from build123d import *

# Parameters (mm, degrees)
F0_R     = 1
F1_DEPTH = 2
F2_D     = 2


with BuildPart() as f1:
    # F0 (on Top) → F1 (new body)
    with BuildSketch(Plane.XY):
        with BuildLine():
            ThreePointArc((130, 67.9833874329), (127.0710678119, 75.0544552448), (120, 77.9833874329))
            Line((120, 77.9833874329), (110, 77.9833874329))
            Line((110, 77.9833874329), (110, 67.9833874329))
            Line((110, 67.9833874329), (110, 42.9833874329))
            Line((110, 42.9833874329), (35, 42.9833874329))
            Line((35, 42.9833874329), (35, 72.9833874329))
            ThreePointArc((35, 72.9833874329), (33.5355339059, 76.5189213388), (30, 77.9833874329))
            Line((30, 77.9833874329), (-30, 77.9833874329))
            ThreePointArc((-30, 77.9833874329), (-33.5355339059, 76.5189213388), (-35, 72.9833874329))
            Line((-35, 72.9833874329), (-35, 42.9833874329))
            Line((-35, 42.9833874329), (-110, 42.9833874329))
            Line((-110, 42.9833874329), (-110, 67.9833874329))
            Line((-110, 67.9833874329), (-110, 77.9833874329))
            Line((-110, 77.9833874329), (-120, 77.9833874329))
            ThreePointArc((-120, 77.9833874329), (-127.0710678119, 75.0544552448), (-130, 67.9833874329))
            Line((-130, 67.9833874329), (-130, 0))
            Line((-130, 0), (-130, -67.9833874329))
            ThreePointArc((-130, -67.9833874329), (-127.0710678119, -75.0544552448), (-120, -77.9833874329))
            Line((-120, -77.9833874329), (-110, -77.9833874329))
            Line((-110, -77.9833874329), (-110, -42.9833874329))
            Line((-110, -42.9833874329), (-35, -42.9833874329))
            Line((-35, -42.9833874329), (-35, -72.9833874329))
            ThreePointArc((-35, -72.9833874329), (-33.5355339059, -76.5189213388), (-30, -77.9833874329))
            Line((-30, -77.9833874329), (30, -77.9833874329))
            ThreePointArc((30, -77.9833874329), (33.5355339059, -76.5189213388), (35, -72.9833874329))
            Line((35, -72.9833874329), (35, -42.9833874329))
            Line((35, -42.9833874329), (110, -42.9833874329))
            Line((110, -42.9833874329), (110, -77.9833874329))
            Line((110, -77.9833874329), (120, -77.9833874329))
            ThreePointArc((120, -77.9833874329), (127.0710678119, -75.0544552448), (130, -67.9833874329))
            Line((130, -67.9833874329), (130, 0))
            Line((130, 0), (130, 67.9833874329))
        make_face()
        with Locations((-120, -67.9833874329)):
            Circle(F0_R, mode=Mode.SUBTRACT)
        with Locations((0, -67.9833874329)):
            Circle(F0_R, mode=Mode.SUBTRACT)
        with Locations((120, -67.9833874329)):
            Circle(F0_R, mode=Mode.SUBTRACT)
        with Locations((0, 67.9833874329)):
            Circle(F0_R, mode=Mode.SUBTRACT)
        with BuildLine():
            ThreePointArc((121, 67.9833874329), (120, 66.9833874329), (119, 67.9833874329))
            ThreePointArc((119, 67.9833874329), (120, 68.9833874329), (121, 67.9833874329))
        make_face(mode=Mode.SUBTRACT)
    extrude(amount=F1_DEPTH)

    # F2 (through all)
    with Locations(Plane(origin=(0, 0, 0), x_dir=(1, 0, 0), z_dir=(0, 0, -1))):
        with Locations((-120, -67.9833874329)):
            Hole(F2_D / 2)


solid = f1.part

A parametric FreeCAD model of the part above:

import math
import FreeCAD as App
import Part
import Sketcher

doc = App.newDocument("Part")
body = doc.addObject("PartDesign::Body", "Body")

sketch1 = body.newObject("Sketcher::SketchObject", "Sketch")
sketch1.AttachmentSupport = (doc.getObject("XY_Plane"), [""])
sketch1.MapMode = "FlatFace"
sketch1.addGeometry([
    Part.ArcOfCircle(Part.Circle(App.Vector(120, 68, 0), App.Vector(0, 0, 1), 10), math.radians(0), math.radians(90)),
    Part.LineSegment(App.Vector(120, 78, 0), App.Vector(110, 78, 0)),
    Part.LineSegment(App.Vector(110, 78, 0), App.Vector(110, 43, 0)),
    Part.LineSegment(App.Vector(110, 43, 0), App.Vector(35, 43, 0)),
    Part.LineSegment(App.Vector(35, 43, 0), App.Vector(35, 73, 0)),
    Part.ArcOfCircle(Part.Circle(App.Vector(30, 73, 0), App.Vector(0, 0, 1), 5), math.radians(0), math.radians(90)),
    Part.LineSegment(App.Vector(30, 78, 0), App.Vector(-30, 78, 0)),
    Part.ArcOfCircle(Part.Circle(App.Vector(-30, 73, 0), App.Vector(0, 0, 1), 5), math.radians(90), math.radians(180)),
    Part.LineSegment(App.Vector(-35, 73, 0), App.Vector(-35, 43, 0)),
    Part.LineSegment(App.Vector(-35, 43, 0), App.Vector(-110, 43, 0)),
    Part.LineSegment(App.Vector(-110, 43, 0), App.Vector(-110, 78, 0)),
    Part.LineSegment(App.Vector(-110, 78, 0), App.Vector(-120, 78, 0)),
    Part.ArcOfCircle(Part.Circle(App.Vector(-120, 68, 0), App.Vector(0, 0, 1), 10), math.radians(90), math.radians(180)),
    Part.LineSegment(App.Vector(-130, 68, 0), App.Vector(-130, -68, 0)),
    Part.ArcOfCircle(Part.Circle(App.Vector(-120, -68, 0), App.Vector(0, 0, 1), 10), math.radians(180), math.radians(270)),
    Part.LineSegment(App.Vector(-120, -78, 0), App.Vector(-110, -78, 0)),
    Part.LineSegment(App.Vector(-110, -78, 0), App.Vector(-110, -43, 0)),
    Part.LineSegment(App.Vector(-110, -43, 0), App.Vector(-35, -43, 0)),
    Part.LineSegment(App.Vector(-35, -43, 0), App.Vector(-35, -73, 0)),
    Part.ArcOfCircle(Part.Circle(App.Vector(-30, -73, 0), App.Vector(0, 0, 1), 5), math.radians(180), math.radians(270)),
    Part.LineSegment(App.Vector(-30, -78, 0), App.Vector(30, -78, 0)),
    Part.ArcOfCircle(Part.Circle(App.Vector(30, -73, 0), App.Vector(0, 0, 1), 5), math.radians(-90), math.radians(0)),
    Part.LineSegment(App.Vector(35, -73, 0), App.Vector(35, -43, 0)),
    Part.LineSegment(App.Vector(35, -43, 0), App.Vector(110, -43, 0)),
    Part.LineSegment(App.Vector(110, -43, 0), App.Vector(110, -78, 0)),
    Part.LineSegment(App.Vector(110, -78, 0), App.Vector(120, -78, 0)),
    Part.ArcOfCircle(Part.Circle(App.Vector(120, -68, 0), App.Vector(0, 0, 1), 10), math.radians(-90), math.radians(0)),
    Part.LineSegment(App.Vector(130, -68, 0), App.Vector(130, 68, 0)),
    Part.Circle(App.Vector(-120, -68, 0), App.Vector(0, 0, 1), 1),
    Part.Circle(App.Vector(0, -68, 0), App.Vector(0, 0, 1), 1),
    Part.Circle(App.Vector(120, -68, 0), App.Vector(0, 0, 1), 1),
    Part.Circle(App.Vector(0, 68, 0), App.Vector(0, 0, 1), 1),
    Part.Circle(App.Vector(120, 68, 0), App.Vector(0, 0, 1), 1),
], False)
sketch1.addConstraint([
    Sketcher.Constraint("Tangent", 0, 2, 1, 1),
    Sketcher.Constraint("Coincident", 1, 2, 2, 1),
    Sketcher.Constraint("Coincident", 2, 2, 3, 1),
    Sketcher.Constraint("Coincident", 3, 2, 4, 1),
    Sketcher.Constraint("Tangent", 4, 2, 5, 1),
    Sketcher.Constraint("Tangent", 5, 2, 6, 1),
    Sketcher.Constraint("Tangent", 6, 2, 7, 1),
    Sketcher.Constraint("Tangent", 7, 2, 8, 1),
    Sketcher.Constraint("Coincident", 8, 2, 9, 1),
    Sketcher.Constraint("Coincident", 9, 2, 10, 1),
    Sketcher.Constraint("Coincident", 10, 2, 11, 1),
    Sketcher.Constraint("Tangent", 11, 2, 12, 1),
    Sketcher.Constraint("Tangent", 12, 2, 13, 1),
    Sketcher.Constraint("Tangent", 13, 2, 14, 1),
    Sketcher.Constraint("Tangent", 14, 2, 15, 1),
    Sketcher.Constraint("Coincident", 15, 2, 16, 1),
    Sketcher.Constraint("Coincident", 16, 2, 17, 1),
    Sketcher.Constraint("Coincident", 17, 2, 18, 1),
    Sketcher.Constraint("Tangent", 18, 2, 19, 1),
    Sketcher.Constraint("Tangent", 19, 2, 20, 1),
    Sketcher.Constraint("Tangent", 20, 2, 21, 1),
    Sketcher.Constraint("Tangent", 21, 2, 22, 1),
    Sketcher.Constraint("Coincident", 22, 2, 23, 1),
    Sketcher.Constraint("Coincident", 23, 2, 24, 1),
    Sketcher.Constraint("Coincident", 24, 2, 25, 1),
    Sketcher.Constraint("Tangent", 25, 2, 26, 1),
    Sketcher.Constraint("Tangent", 26, 2, 27, 1),
    Sketcher.Constraint("Tangent", 27, 2, 0, 1),
    Sketcher.Constraint("Horizontal", 1),
    Sketcher.Constraint("Vertical", 2),
    Sketcher.Constraint("Horizontal", 3),
    Sketcher.Constraint("Vertical", 4),
    Sketcher.Constraint("Horizontal", 6),
    Sketcher.Constraint("Vertical", 8),
    Sketcher.Constraint("Horizontal", 9),
    Sketcher.Constraint("Vertical", 10),
    Sketcher.Constraint("Horizontal", 11),
    Sketcher.Constraint("Vertical", 13),
    Sketcher.Constraint("Horizontal", 15),
    Sketcher.Constraint("Vertical", 16),
    Sketcher.Constraint("Horizontal", 17),
    Sketcher.Constraint("Vertical", 18),
    Sketcher.Constraint("Horizontal", 20),
    Sketcher.Constraint("Vertical", 22),
    Sketcher.Constraint("Horizontal", 23),
    Sketcher.Constraint("Vertical", 24),
    Sketcher.Constraint("Horizontal", 25),
    Sketcher.Constraint("Vertical", 27),
    Sketcher.Constraint("Coincident", 28, 3, 14, 3),
    Sketcher.Constraint("Coincident", 30, 3, 26, 3),
    Sketcher.Constraint("Coincident", 32, 3, 0, 3),
    Sketcher.Constraint("Equal", 5, 7),
    Sketcher.Constraint("Equal", 0, 12),
    Sketcher.Constraint("Equal", 12, 14),
    Sketcher.Constraint("Equal", 7, 19),
    Sketcher.Constraint("Equal", 19, 21),
    Sketcher.Constraint("Equal", 14, 26),
    Sketcher.Constraint("Equal", 28, 29),
    Sketcher.Constraint("Equal", 29, 30),
    Sketcher.Constraint("Equal", 30, 31),
    Sketcher.Constraint("Equal", 31, 32),
    Sketcher.Constraint("Symmetric", 0, 3, 14, 3, -1, 1),
    Sketcher.Constraint("Symmetric", 5, 3, 19, 3, -1, 1),
    Sketcher.Constraint("Symmetric", 29, 3, 31, 3, -1, 1),
    Sketcher.Constraint("Symmetric", 2, 2, 16, 2, -1, 1),
    Sketcher.Constraint("Symmetric", 8, 2, 22, 2, -1, 1),
    Sketcher.Constraint("Symmetric", 10, 2, 24, 2, -1, 1),
    Sketcher.Constraint("Symmetric", 3, 2, 8, 2, -2),
    Sketcher.Constraint("Symmetric", 1, 2, 10, 2, -2),
    Sketcher.Constraint("PointOnObject", 29, 3, -2),
    Sketcher.Constraint("Horizontal", 28, 3, 29, 3),
    Sketcher.Constraint("Horizontal", 1, 2, 5, 2),
    Sketcher.Constraint("Diameter", 28, 2.0),
    Sketcher.Constraint("Radius", 0, 10.0),
    Sketcher.Constraint("Radius", 5, 5.0),
    Sketcher.Constraint("DistanceX", 1, 2, 1, 1, 10.0),
    Sketcher.Constraint("DistanceX", 3, 2, 3, 1, 75.0),
    Sketcher.Constraint("DistanceX", 6, 2, 6, 1, 60.0),
    Sketcher.Constraint("DistanceY", 2, 2, 2, 1, 35.0),
    Sketcher.Constraint("DistanceY", 13, 2, 13, 1, 135.966775),
])
pad1 = body.newObject("PartDesign::Pad", "Pad")
pad1.Profile = sketch1
pad1.Length = 2

sketch2 = body.newObject("Sketcher::SketchObject", "Sketch001")
sketch2.AttachmentSupport = (doc.getObject("XY_Plane"), [""])
sketch2.MapMode = "FlatFace"
sketch2.addGeometry(Part.Circle(App.Vector(-120, 68, 0), App.Vector(0, 0, 1), 1), False)
sketch2.addConstraint([
    Sketcher.Constraint("Diameter", 0, 2.0),
    Sketcher.Constraint("DistanceX", 0, 3, -1, 1, 120.0),
    Sketcher.Constraint("DistanceY", -1, 1, 0, 3, 67.983387),
])
doc.recompute()
hole = body.newObject("PartDesign::Hole", "Hole")
hole.Profile = sketch2
hole.ThreadType = "None"
hole.Diameter = 2
hole.DepthType = "ThroughAll"
hole.Reversed = True

doc.recompute()
